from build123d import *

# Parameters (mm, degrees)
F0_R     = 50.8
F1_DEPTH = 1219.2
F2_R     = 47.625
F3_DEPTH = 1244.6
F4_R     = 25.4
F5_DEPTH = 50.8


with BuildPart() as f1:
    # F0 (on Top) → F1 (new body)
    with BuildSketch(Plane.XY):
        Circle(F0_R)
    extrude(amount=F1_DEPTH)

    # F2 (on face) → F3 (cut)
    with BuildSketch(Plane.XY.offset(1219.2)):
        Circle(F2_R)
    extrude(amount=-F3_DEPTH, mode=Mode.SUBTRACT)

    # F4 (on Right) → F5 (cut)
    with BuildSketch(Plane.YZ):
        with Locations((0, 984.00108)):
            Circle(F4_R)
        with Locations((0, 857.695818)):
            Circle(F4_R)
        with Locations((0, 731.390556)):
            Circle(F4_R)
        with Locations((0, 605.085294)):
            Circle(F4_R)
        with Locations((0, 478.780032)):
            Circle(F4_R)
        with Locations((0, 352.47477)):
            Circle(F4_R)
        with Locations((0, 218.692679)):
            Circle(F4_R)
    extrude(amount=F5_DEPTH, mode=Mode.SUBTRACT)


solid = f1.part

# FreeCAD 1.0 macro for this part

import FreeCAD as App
import Part
import Sketcher
from FreeCAD import Vector
Q = App.Units.Quantity

doc = App.newDocument("Part")
body = doc.addObject("PartDesign::Body", "Body")

# Sketch on XY plane
sketch1 = body.newObject("Sketcher::SketchObject", "Sketch")
sketch1.AttachmentSupport = (doc.getObject("XY_Plane"), [""])
sketch1.MapMode = "FlatFace"
sketch1.addGeometry(Part.Circle(Vector(0, 0, 0), Vector(0, 0, 1), 51), False)
sketch1.addConstraint(Sketcher.Constraint("Coincident", 0, 3, -1, 1))
sketch1.addConstraint(Sketcher.Constraint("Diameter", 0, Q("4 in")))
pad1 = body.newObject("PartDesign::Pad", "Pad")
pad1.Profile = sketch1
pad1.Length = Q("48 in")

# Sketch on XY plane
sketch2 = body.newObject("Sketcher::SketchObject", "Sketch001")
sketch2.AttachmentSupport = (doc.getObject("XY_Plane"), [""])
sketch2.MapMode = "FlatFace"
sketch2.AttachmentOffset = App.Placement(Vector(0, 0, 48 * 25.4), App.Rotation())
sketch2.addGeometry(Part.Circle(Vector(0, 0, 0), Vector(0, 0, 1), 48), False)
sketch2.addConstraint(Sketcher.Constraint("Coincident", 0, 3, -1, 1))
sketch2.addConstraint(Sketcher.Constraint("Diameter", 0, Q("3.75 in")))
pocket1 = body.newObject("PartDesign::Pocket", "Pocket")
pocket1.Profile = sketch2
pocket1.Length = Q("49 in")

# Sketch on YZ plane
sketch3 = body.newObject("Sketcher::SketchObject", "Sketch002")
sketch3.AttachmentSupport = (doc.getObject("YZ_Plane"), [""])
sketch3.MapMode = "FlatFace"
sketch3.addGeometry(Part.Circle(Vector(0, 984, 0), Vector(0, 0, 1), 25), False)
sketch3.addGeometry(Part.Circle(Vector(0, 858, 0), Vector(0, 0, 1), 25), False)
sketch3.addGeometry(Part.Circle(Vector(0, 731, 0), Vector(0, 0, 1), 25), False)
sketch3.addGeometry(Part.Circle(Vector(0, 605, 0), Vector(0, 0, 1), 25), False)
sketch3.addGeometry(Part.Circle(Vector(0, 479, 0), Vector(0, 0, 1), 25), False)
sketch3.addGeometry(Part.Circle(Vector(0, 352, 0), Vector(0, 0, 1), 25), False)
sketch3.addGeometry(Part.Circle(Vector(0, 219, 0), Vector(0, 0, 1), 25), False)
sketch3.addConstraint(Sketcher.Constraint("Equal", 0, 1))
sketch3.addConstraint(Sketcher.Constraint("Equal", 1, 2))
sketch3.addConstraint(Sketcher.Constraint("Equal", 2, 3))
sketch3.addConstraint(Sketcher.Constraint("Equal", 3, 4))
sketch3.addConstraint(Sketcher.Constraint("Equal", 4, 5))
sketch3.addConstraint(Sketcher.Constraint("Equal", 5, 6))
sketch3.addConstraint(Sketcher.Constraint("PointOnObject", 0, 3, -2))
sketch3.addConstraint(Sketcher.Constraint("PointOnObject", 1, 3, -2))
sketch3.addConstraint(Sketcher.Constraint("PointOnObject", 2, 3, -2))
sketch3.addConstraint(Sketcher.Constraint("PointOnObject", 3, 3, -2))
sketch3.addConstraint(Sketcher.Constraint("PointOnObject", 4, 3, -2))
sketch3.addConstraint(Sketcher.Constraint("PointOnObject", 5, 3, -2))
sketch3.addConstraint(Sketcher.Constraint("PointOnObject", 6, 3, -2))
sketch3.addConstraint(Sketcher.Constraint("Diameter", 0, Q("2 in")))
sketch3.addConstraint(Sketcher.Constraint("DistanceY", -1, 1, 0, 3, Q("38.7402 in")))
sketch3.addConstraint(Sketcher.Constraint("DistanceY", -1, 1, 1, 3, Q("857.695818 mm")))
sketch3.addConstraint(Sketcher.Constraint("DistanceY", -1, 1, 4, 3, Q("478.780032 mm")))
sketch3.addConstraint(Sketcher.Constraint("DistanceY", -1, 1, 5, 3, Q("352.47477 mm")))
sketch3.addConstraint(Sketcher.Constraint("DistanceY", -1, 1, 6, 3, Q("218.692679 mm")))
sketch3.addConstraint(Sketcher.Constraint("DistanceY", 3, 3, 2, 3, Q("126.305262 mm")))
sketch3.addConstraint(Sketcher.Constraint("DistanceY", 4, 3, 3, 3, Q("126.305262 mm")))
pocket2 = body.newObject("PartDesign::Pocket", "Pocket001")
pocket2.Profile = sketch3
pocket2.Length = Q("2 in")
pocket2.Reversed = True

doc.recompute()
